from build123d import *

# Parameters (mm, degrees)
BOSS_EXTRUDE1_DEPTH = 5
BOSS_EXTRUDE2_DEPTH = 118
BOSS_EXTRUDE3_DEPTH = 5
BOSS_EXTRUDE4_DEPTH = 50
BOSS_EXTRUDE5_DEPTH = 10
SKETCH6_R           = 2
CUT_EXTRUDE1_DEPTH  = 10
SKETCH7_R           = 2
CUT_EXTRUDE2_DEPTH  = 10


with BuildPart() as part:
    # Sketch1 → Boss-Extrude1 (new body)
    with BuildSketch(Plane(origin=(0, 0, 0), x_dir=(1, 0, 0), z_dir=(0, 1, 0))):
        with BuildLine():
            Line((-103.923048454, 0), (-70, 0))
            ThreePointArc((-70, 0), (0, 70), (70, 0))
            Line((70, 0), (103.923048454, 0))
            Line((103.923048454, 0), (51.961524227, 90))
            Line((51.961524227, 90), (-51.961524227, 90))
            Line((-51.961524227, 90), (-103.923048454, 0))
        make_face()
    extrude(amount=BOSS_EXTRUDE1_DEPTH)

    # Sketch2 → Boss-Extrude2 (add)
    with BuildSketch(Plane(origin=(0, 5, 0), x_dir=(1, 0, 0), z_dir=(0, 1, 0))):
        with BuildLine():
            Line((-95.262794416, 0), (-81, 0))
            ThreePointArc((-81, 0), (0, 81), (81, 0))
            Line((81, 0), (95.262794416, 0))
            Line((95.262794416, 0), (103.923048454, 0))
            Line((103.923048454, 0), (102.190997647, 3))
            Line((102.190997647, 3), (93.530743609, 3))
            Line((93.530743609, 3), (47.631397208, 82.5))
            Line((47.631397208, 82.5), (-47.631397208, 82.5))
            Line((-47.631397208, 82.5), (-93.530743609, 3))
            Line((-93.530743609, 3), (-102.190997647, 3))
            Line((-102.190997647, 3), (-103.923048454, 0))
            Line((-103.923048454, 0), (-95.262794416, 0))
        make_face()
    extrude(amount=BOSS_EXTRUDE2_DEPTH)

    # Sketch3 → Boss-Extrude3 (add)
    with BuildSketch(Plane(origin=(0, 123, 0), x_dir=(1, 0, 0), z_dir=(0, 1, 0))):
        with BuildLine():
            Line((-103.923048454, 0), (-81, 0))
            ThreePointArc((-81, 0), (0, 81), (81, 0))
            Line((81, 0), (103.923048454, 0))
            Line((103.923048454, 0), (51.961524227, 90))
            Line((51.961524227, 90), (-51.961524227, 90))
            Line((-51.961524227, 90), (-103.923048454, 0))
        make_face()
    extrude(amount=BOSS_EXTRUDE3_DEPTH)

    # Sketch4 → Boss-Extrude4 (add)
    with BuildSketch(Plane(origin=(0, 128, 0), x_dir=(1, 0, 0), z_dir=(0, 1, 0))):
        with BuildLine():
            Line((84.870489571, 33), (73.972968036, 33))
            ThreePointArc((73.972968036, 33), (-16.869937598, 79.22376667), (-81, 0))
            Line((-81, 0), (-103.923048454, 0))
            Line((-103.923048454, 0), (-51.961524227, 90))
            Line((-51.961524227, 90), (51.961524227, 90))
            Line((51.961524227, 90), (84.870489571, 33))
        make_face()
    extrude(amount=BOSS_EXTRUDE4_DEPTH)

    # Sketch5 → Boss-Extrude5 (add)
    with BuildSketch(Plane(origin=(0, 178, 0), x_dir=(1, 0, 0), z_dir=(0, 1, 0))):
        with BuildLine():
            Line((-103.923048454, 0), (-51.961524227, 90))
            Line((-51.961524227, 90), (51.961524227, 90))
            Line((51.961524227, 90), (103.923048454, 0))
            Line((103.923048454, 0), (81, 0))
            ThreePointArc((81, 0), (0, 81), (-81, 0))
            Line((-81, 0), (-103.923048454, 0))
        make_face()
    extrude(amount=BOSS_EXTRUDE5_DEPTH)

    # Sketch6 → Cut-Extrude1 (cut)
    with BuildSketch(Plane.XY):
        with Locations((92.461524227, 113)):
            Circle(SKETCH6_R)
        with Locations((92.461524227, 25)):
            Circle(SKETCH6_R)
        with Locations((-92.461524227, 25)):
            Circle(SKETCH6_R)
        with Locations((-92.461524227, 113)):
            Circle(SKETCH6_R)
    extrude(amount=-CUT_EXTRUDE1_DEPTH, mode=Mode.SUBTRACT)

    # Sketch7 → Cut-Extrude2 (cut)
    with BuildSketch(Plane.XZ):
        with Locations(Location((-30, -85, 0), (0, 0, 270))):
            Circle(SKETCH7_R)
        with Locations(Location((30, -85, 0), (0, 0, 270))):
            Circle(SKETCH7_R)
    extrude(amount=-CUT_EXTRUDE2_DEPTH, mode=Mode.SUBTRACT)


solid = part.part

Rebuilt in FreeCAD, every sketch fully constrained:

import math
import FreeCAD as App
import Part
import Sketcher

V = App.Vector
Q = App.Units.Quantity

doc = App.newDocument("Part")
params = doc.addObject("Spreadsheet::Sheet", "Params")
for row, (alias, value) in enumerate([
    ("sketch1_radius", "70 mm"),
    ("pad1_length", "5 mm"),
    ("sketch2_radius", "81 mm"),
    ("pad2_length", "118 mm"),
    ("sketch3_radius", "81 mm"),
    ("pad3_length", "5 mm"),
    ("sketch4_radius", "81 mm"),
    ("pad4_length", "50 mm"),
    ("sketch5_radius", "81 mm"),
    ("pad5_length", "10 mm"),
    ("sketch6_diameter", "4 mm"),
    ("pocket1_length", "10 mm"),
    ("sketch7_diameter", "4 mm"),
    ("pocket2_length", "10 mm"),
], start=1):
    params.set(f"A{row}", alias)
    params.set(f"B{row}", "=" + value)
    params.setAlias(f"B{row}", alias)

body = doc.addObject("PartDesign::Body", "Body")

# Sketch on XZ plane
sketch1 = body.newObject("Sketcher::SketchObject", "Sketch")
sketch1.AttachmentSupport = (doc.getObject("XZ_Plane"), [""])
sketch1.MapMode = "FlatFace"
sketch1.addGeometry(Part.LineSegment(V(-104, 0, 0), V(-70, 0, 0)), False)
sketch1.addGeometry(Part.ArcOfCircle(Part.Circle(V(0, 0, 0), V(0, 0, 1), 70), math.radians(180), math.radians(360)), False)
sketch1.addGeometry(Part.LineSegment(V(70, 0, 0), V(104, 0, 0)), False)
sketch1.addGeometry(Part.LineSegment(V(104, 0, 0), V(52, -90, 0)), False)
sketch1.addGeometry(Part.LineSegment(V(52, -90, 0), V(-52, -90, 0)), False)
sketch1.addGeometry(Part.LineSegment(V(-52, -90, 0), V(-104, 0, 0)), False)
sketch1.addConstraint(Sketcher.Constraint("Coincident", 0, 2, 1, 1))
sketch1.addConstraint(Sketcher.Constraint("Coincident", 1, 2, 2, 1))
sketch1.addConstraint(Sketcher.Constraint("Coincident", 2, 2, 3, 1))
sketch1.addConstraint(Sketcher.Constraint("Coincident", 3, 2, 4, 1))
sketch1.addConstraint(Sketcher.Constraint("Coincident", 4, 2, 5, 1))
sketch1.addConstraint(Sketcher.Constraint("Coincident", 5, 2, 0, 1))
sketch1.addConstraint(Sketcher.Constraint("Horizontal", 0))
sketch1.addConstraint(Sketcher.Constraint("Horizontal", 2))
sketch1.addConstraint(Sketcher.Constraint("Horizontal", 4))
sketch1.addConstraint(Sketcher.Constraint("Coincident", 1, 3, -1, 1))
sketch1.addConstraint(Sketcher.Constraint("Symmetric", 2, 2, 5, 2, -1, 1))
sketch1.addConstraint(Sketcher.Constraint("PointOnObject", 0, 2, -1))
sketch1.addConstraint(Sketcher.Constraint("Equal", 3, 5))
sketch1.addConstraint(Sketcher.Constraint("Radius", 1, 70.0))
sketch1.addConstraint(Sketcher.Constraint("Angle", 3, Q("-120 deg")))
sketch1.addConstraint(Sketcher.Constraint("DistanceY", 3, 2, -1, 1, 90.0))
sketch1.addConstraint(Sketcher.Constraint("DistanceX", 0, 1, 0, 2, 33.923048))
sketch1.setExpression("Constraints[13]", "Params.sketch1_radius")
pad1 = body.newObject("PartDesign::Pad", "Pad")
pad1.Profile = sketch1
pad1.setExpression("Length", "Params.pad1_length")
pad1.Reversed = True

# Sketch on XZ plane
sketch2 = body.newObject("Sketcher::SketchObject", "Sketch001")
sketch2.AttachmentSupport = (doc.getObject("XZ_Plane"), [""])
sketch2.MapMode = "FlatFace"
sketch2.AttachmentOffset = App.Placement(V(0, 0, -5), App.Rotation())
sketch2.addGeometry(Part.ArcOfCircle(Part.Circle(V(0, 0, 0), V(0, 0, 1), 81), math.radians(180), math.radians(360)), False)
sketch2.addGeometry(Part.LineSegment(V(81, 0, 0), V(103.9, 0, 0)), False)
sketch2.addGeometry(Part.LineSegment(V(103.9, 0, 0), V(102.2, -3, 0)), False)
sketch2.addGeometry(Part.LineSegment(V(102.2, -3, 0), V(93.5, -3, 0)), False)
sketch2.addGeometry(Part.LineSegment(V(93.5, -3, 0), V(47.6, -82.5, 0)), False)
sketch2.addGeometry(Part.LineSegment(V(47.6, -82.5, 0), V(-47.6, -82.5, 0)), False)
sketch2.addGeometry(Part.LineSegment(V(-47.6, -82.5, 0), V(-93.5, -3, 0)), False)
sketch2.addGeometry(Part.LineSegment(V(-93.5, -3, 0), V(-102.2, -3, 0)), False)
sketch2.addGeometry(Part.LineSegment(V(-102.2, -3, 0), V(-103.9, 0, 0)), False)
sketch2.addGeometry(Part.LineSegment(V(-103.9, 0, 0), V(-81, 0, 0)), False)
sketch2.addConstraint(Sketcher.Constraint("Coincident", 0, 2, 1, 1))
sketch2.addConstraint(Sketcher.Constraint("Coincident", 1, 2, 2, 1))
sketch2.addConstraint(Sketcher.Constraint("Coincident", 2, 2, 3, 1))
sketch2.addConstraint(Sketcher.Constraint("Coincident", 3, 2, 4, 1))
sketch2.addConstraint(Sketcher.Constraint("Coincident", 4, 2, 5, 1))
sketch2.addConstraint(Sketcher.Constraint("Coincident", 5, 2, 6, 1))
sketch2.addConstraint(Sketcher.Constraint("Coincident", 6, 2, 7, 1))
sketch2.addConstraint(Sketcher.Constraint("Coincident", 7, 2, 8, 1))
sketch2.addConstraint(Sketcher.Constraint("Coincident", 8, 2, 9, 1))
sketch2.addConstraint(Sketcher.Constraint("Coincident", 9, 2, 0, 1))
sketch2.addConstraint(Sketcher.Constraint("Horizontal", 1))
sketch2.addConstraint(Sketcher.Constraint("Horizontal", 3))
sketch2.addConstraint(Sketcher.Constraint("Horizontal", 5))
sketch2.addConstraint(Sketcher.Constraint("Horizontal", 7))
sketch2.addConstraint(Sketcher.Constraint("Horizontal", 9))
sketch2.addConstraint(Sketcher.Constraint("Coincident", 0, 3, -1, 1))
sketch2.addConstraint(Sketcher.Constraint("Symmetric", 1, 2, 8, 2, -1, 1))
sketch2.addConstraint(Sketcher.Constraint("Symmetric", 3, 2, 6, 2, -2))
sketch2.addConstraint(Sketcher.Constraint("PointOnObject", 0, 2, -1))
sketch2.addConstraint(Sketcher.Constraint("Parallel", 2, 4))
sketch2.addConstraint(Sketcher.Constraint("Parallel", 6, 8))
sketch2.addConstraint(Sketcher.Constraint("Equal", 3, 7))
sketch2.addConstraint(Sketcher.Constraint("Radius", 0, 81.0))
sketch2.addConstraint(Sketcher.Constraint("Angle", 2, Q("-120 deg")))
sketch2.addConstraint(Sketcher.Constraint("DistanceY", 2, 2, -1, 1, 3.0))
sketch2.addConstraint(Sketcher.Constraint("DistanceY", 4, 2, -1, 1, 82.5))
sketch2.addConstraint(Sketcher.Constraint("DistanceX", 1, 1, 1, 2, 22.923048))
sketch2.addConstraint(Sketcher.Constraint("DistanceX", 4, 2, 2, 2, 54.5596))
sketch2.setExpression("Constraints[22]", "Params.sketch2_radius")
pad2 = body.newObject("PartDesign::Pad", "Pad001")
pad2.Profile = sketch2
pad2.setExpression("Length", "Params.pad2_length")
pad2.Reversed = True

# Sketch on XZ plane
sketch3 = body.newObject("Sketcher::SketchObject", "Sketch002")
sketch3.AttachmentSupport = (doc.getObject("XZ_Plane"), [""])
sketch3.MapMode = "FlatFace"
sketch3.AttachmentOffset = App.Placement(V(0, 0, -123), App.Rotation())
sketch3.addGeometry(Part.LineSegment(V(-104, 0, 0), V(-81, 0, 0)), False)
sketch3.addGeometry(Part.ArcOfCircle(Part.Circle(V(0, 0, 0), V(0, 0, 1), 81), math.radians(180), math.radians(360)), False)
sketch3.addGeometry(Part.LineSegment(V(81, 0, 0), V(104, 0, 0)), False)
sketch3.addGeometry(Part.LineSegment(V(104, 0, 0), V(52, -90, 0)), False)
sketch3.addGeometry(Part.LineSegment(V(52, -90, 0), V(-52, -90, 0)), False)
sketch3.addGeometry(Part.LineSegment(V(-52, -90, 0), V(-104, 0, 0)), False)
sketch3.addConstraint(Sketcher.Constraint("Coincident", 0, 2, 1, 1))
sketch3.addConstraint(Sketcher.Constraint("Coincident", 1, 2, 2, 1))
sketch3.addConstraint(Sketcher.Constraint("Coincident", 2, 2, 3, 1))
sketch3.addConstraint(Sketcher.Constraint("Coincident", 3, 2, 4, 1))
sketch3.addConstraint(Sketcher.Constraint("Coincident", 4, 2, 5, 1))
sketch3.addConstraint(Sketcher.Constraint("Coincident", 5, 2, 0, 1))
sketch3.addConstraint(Sketcher.Constraint("Horizontal", 0))
sketch3.addConstraint(Sketcher.Constraint("Horizontal", 2))
sketch3.addConstraint(Sketcher.Constraint("Horizontal", 4))
sketch3.addConstraint(Sketcher.Constraint("Coincident", 1, 3, -1, 1))
sketch3.addConstraint(Sketcher.Constraint("Symmetric", 2, 2, 5, 2, -1, 1))
sketch3.addConstraint(Sketcher.Constraint("PointOnObject", 0, 2, -1))
sketch3.addConstraint(Sketcher.Constraint("Equal", 3, 5))
sketch3.addConstraint(Sketcher.Constraint("Radius", 1, 81.0))
sketch3.addConstraint(Sketcher.Constraint("Angle", 3, Q("-120 deg")))
sketch3.addConstraint(Sketcher.Constraint("DistanceY", 3, 2, -1, 1, 90.0))
sketch3.addConstraint(Sketcher.Constraint("DistanceX", 0, 1, 0, 2, 22.923048))
sketch3.setExpression("Constraints[13]", "Params.sketch3_radius")
pad3 = body.newObject("PartDesign::Pad", "Pad002")
pad3.Profile = sketch3
pad3.setExpression("Length", "Params.pad3_length")
pad3.Reversed = True

# Sketch on XZ plane
sketch4 = body.newObject("Sketcher::SketchObject", "Sketch003")
sketch4.AttachmentSupport = (doc.getObject("XZ_Plane"), [""])
sketch4.MapMode = "FlatFace"
sketch4.AttachmentOffset = App.Placement(V(0, 0, -128), App.Rotation())
sketch4.addGeometry(Part.LineSegment(V(74, -33, 0), V(85, -33, 0)), False)
sketch4.addGeometry(Part.LineSegment(V(85, -33, 0), V(52, -90, 0)), False)
sketch4.addGeometry(Part.LineSegment(V(52, -90, 0), V(-52, -90, 0)), False)
sketch4.addGeometry(Part.LineSegment(V(-52, -90, 0), V(-104, 0, 0)), False)
sketch4.addGeometry(Part.LineSegment(V(-104, 0, 0), V(-81, 0, 0)), False)
sketch4.addGeometry(Part.ArcOfCircle(Part.Circle(V(0, 0, 0), V(0, 0, 1), 81), math.radians(-180), math.radians(-24)), False)
sketch4.addConstraint(Sketcher.Constraint("Coincident", 0, 2, 1, 1))
sketch4.addConstraint(Sketcher.Constraint("Coincident", 1, 2, 2, 1))
sketch4.addConstraint(Sketcher.Constraint("Coincident", 2, 2, 3, 1))
sketch4.addConstraint(Sketcher.Constraint("Coincident", 3, 2, 4, 1))
sketch4.addConstraint(Sketcher.Constraint("Coincident", 4, 2, 5, 1))
sketch4.addConstraint(Sketcher.Constraint("Coincident", 5, 2, 0, 1))
sketch4.addConstraint(Sketcher.Constraint("Horizontal", 0))
sketch4.addConstraint(Sketcher.Constraint("Horizontal", 2))
sketch4.addConstraint(Sketcher.Constraint("Horizontal", 4))
sketch4.addConstraint(Sketcher.Constraint("Coincident", 5, 3, -1, 1))
sketch4.addConstraint(Sketcher.Constraint("PointOnObject", 3, 2, -1))
sketch4.addConstraint(Sketcher.Constraint("Radius", 5, 81.0))
sketch4.addConstraint(Sketcher.Constraint("Angle", 1, Q("-120 deg")))
sketch4.addConstraint(Sketcher.Constraint("Angle", 3, Q("120 deg")))
sketch4.addConstraint(Sketcher.Constraint("DistanceY", 0, 2, -1, 1, 33.0))
sketch4.addConstraint(Sketcher.Constraint("DistanceY", 1, 2, -1, 1, 90.0))
sketch4.addConstraint(Sketcher.Constraint("DistanceX", 0, 1, 0, 2, 10.897522))
sketch4.addConstraint(Sketcher.Constraint("DistanceX", 2, 2, 2, 1, 103.923048))
sketch4.setExpression("Constraints[11]", "Params.sketch4_radius")
pad4 = body.newObject("PartDesign::Pad", "Pad003")
pad4.Profile = sketch4
pad4.setExpression("Length", "Params.pad4_length")
pad4.Reversed = True

# Sketch on XZ plane
sketch5 = body.newObject("Sketcher::SketchObject", "Sketch004")
sketch5.AttachmentSupport = (doc.getObject("XZ_Plane"), [""])
sketch5.MapMode = "FlatFace"
sketch5.AttachmentOffset = App.Placement(V(0, 0, -178), App.Rotation())
sketch5.addGeometry(Part.LineSegment(V(-52, -90, 0), V(-104, 0, 0)), False)
sketch5.addGeometry(Part.LineSegment(V(-104, 0, 0), V(-81, 0, 0)), False)
sketch5.addGeometry(Part.ArcOfCircle(Part.Circle(V(0, 0, 0), V(0, 0, 1), 81), math.radians(180), math.radians(360)), False)
sketch5.addGeometry(Part.LineSegment(V(81, 0, 0), V(104, 0, 0)), False)
sketch5.addGeometry(Part.LineSegment(V(104, 0, 0), V(52, -90, 0)), False)
sketch5.addGeometry(Part.LineSegment(V(52, -90, 0), V(-52, -90, 0)), False)
sketch5.addConstraint(Sketcher.Constraint("Coincident", 0, 2, 1, 1))
sketch5.addConstraint(Sketcher.Constraint("Coincident", 1, 2, 2, 1))
sketch5.addConstraint(Sketcher.Constraint("Coincident", 2, 2, 3, 1))
sketch5.addConstraint(Sketcher.Constraint("Coincident", 3, 2, 4, 1))
sketch5.addConstraint(Sketcher.Constraint("Coincident", 4, 2, 5, 1))
sketch5.addConstraint(Sketcher.Constraint("Coincident", 5, 2, 0, 1))
sketch5.addConstraint(Sketcher.Constraint("Horizontal", 1))
sketch5.addConstraint(Sketcher.Constraint("Horizontal", 3))
sketch5.addConstraint(Sketcher.Constraint("Horizontal", 5))
sketch5.addConstraint(Sketcher.Constraint("Coincident", 2, 3, -1, 1))
sketch5.addConstraint(Sketcher.Constraint("Symmetric", 0, 2, 3, 2, -1, 1))
sketch5.addConstraint(Sketcher.Constraint("PointOnObject", 0, 2, -1))
sketch5.addConstraint(Sketcher.Constraint("Equal", 0, 4))
sketch5.addConstraint(Sketcher.Constraint("Radius", 2, 81.0))
sketch5.addConstraint(Sketcher.Constraint("Angle", 0, Q("120 deg")))
sketch5.addConstraint(Sketcher.Constraint("DistanceY", 4, 2, -1, 1, 90.0))
sketch5.addConstraint(Sketcher.Constraint("DistanceX", 1, 1, 1, 2, 22.923048))
sketch5.setExpression("Constraints[13]", "Params.sketch5_radius")
pad5 = body.newObject("PartDesign::Pad", "Pad004")
pad5.Profile = sketch5
pad5.setExpression("Length", "Params.pad5_length")
pad5.Reversed = True

# Sketch on XY plane
sketch6 = body.newObject("Sketcher::SketchObject", "Sketch005")
sketch6.AttachmentSupport = (doc.getObject("XY_Plane"), [""])
sketch6.MapMode = "FlatFace"
sketch6.addGeometry(Part.Circle(V(92.5, 113, 0), V(0, 0, 1), 2), False)
sketch6.addGeometry(Part.Circle(V(92.5, 25, 0), V(0, 0, 1), 2), False)
sketch6.addGeometry(Part.Circle(V(-92.5, 25, 0), V(0, 0, 1), 2), False)
sketch6.addGeometry(Part.Circle(V(-92.5, 113, 0), V(0, 0, 1), 2), False)
sketch6.addConstraint(Sketcher.Constraint("Equal", 0, 1))
sketch6.addConstraint(Sketcher.Constraint("Equal", 1, 2))
sketch6.addConstraint(Sketcher.Constraint("Equal", 2, 3))
sketch6.addConstraint(Sketcher.Constraint("Symmetric", 1, 3, 2, 3, -2))
sketch6.addConstraint(Sketcher.Constraint("Symmetric", 0, 3, 3, 3, -2))
sketch6.addConstraint(Sketcher.Constraint("Vertical", 0, 3, 1, 3))
sketch6.addConstraint(Sketcher.Constraint("Diameter", 0, 4.0))
sketch6.addConstraint(Sketcher.Constraint("DistanceY", -1, 1, 0, 3, 113.0))
sketch6.addConstraint(Sketcher.Constraint("DistanceY", -1, 1, 1, 3, 25.0))
sketch6.addConstraint(Sketcher.Constraint("DistanceX", 2, 3, 1, 3, 184.923048))
sketch6.setExpression("Constraints[6]", "Params.sketch6_diameter")
pocket1 = body.newObject("PartDesign::Pocket", "Pocket")
pocket1.Profile = sketch6
pocket1.setExpression("Length", "Params.pocket1_length")

# Sketch on XZ plane
sketch7 = body.newObject("Sketcher::SketchObject", "Sketch006")
sketch7.AttachmentSupport = (doc.getObject("XZ_Plane"), [""])
sketch7.MapMode = "FlatFace"
sketch7.addGeometry(Part.Circle(V(-30, -85, 0), V(0, 0, 1), 2), False)
sketch7.addGeometry(Part.Circle(V(30, -85, 0), V(0, 0, 1), 2), False)
sketch7.addConstraint(Sketcher.Constraint("Equal", 0, 1))
sketch7.addConstraint(Sketcher.Constraint("Symmetric", 0, 3, 1, 3, -2))
sketch7.addConstraint(Sketcher.Constraint("Diameter", 0, 4.0))
sketch7.addConstraint(Sketcher.Constraint("DistanceX", 0, 3, -1, 1, 30.0))
sketch7.addConstraint(Sketcher.Constraint("DistanceY", 0, 3, -1, 1, 85.0))
sketch7.setExpression("Constraints[2]", "Params.sketch7_diameter")
pocket2 = body.newObject("PartDesign::Pocket", "Pocket001")
pocket2.Profile = sketch7
pocket2.setExpression("Length", "Params.pocket2_length")

doc.recompute()
